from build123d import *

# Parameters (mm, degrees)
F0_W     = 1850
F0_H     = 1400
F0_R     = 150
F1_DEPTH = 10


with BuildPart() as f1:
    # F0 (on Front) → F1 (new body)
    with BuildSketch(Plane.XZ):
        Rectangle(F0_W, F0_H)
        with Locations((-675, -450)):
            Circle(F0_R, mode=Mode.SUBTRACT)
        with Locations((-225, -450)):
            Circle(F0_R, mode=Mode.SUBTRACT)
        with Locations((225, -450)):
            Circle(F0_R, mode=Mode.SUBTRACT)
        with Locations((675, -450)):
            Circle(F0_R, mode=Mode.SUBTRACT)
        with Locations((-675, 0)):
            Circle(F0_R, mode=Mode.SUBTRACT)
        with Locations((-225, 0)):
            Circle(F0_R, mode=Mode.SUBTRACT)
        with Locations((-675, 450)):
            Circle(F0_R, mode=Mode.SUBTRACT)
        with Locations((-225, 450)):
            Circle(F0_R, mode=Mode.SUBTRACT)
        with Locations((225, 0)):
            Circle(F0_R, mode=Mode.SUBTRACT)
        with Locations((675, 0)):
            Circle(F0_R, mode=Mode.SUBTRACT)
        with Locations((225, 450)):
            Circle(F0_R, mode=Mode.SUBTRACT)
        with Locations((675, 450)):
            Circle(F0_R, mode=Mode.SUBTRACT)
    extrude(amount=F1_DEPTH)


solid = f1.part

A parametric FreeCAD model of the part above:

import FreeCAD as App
import Part
import Sketcher


def add_polygon(sketch, points):
    """Adds a closed chain of lines whose ends are joined by coincident constraints."""
    first, n = sketch.GeometryCount, len(points)
    for a, b in zip(points, points[1:] + points[:1]):
        sketch.addGeometry(Part.LineSegment(App.Vector(*a, 0), App.Vector(*b, 0)), False)
    for i in range(n):
        sketch.addConstraint(Sketcher.Constraint("Coincident", first + i, 2, first + (i + 1) % n, 1))

doc = App.newDocument("Part")
params = doc.addObject("Spreadsheet::Sheet", "Params")
for row, (alias, value) in enumerate([
    ("sketch1_diameter", "300 mm"),
    ("sketch1_width", "1850 mm"),
    ("sketch1_height", "1400 mm"),
    ("pad1_length", "10 mm"),
], start=1):
    params.set(f"A{row}", alias)
    params.set(f"B{row}", "=" + value)
    params.setAlias(f"B{row}", alias)

body = doc.addObject("PartDesign::Body", "Body")

sketch1 = body.newObject("Sketcher::SketchObject", "Sketch")
sketch1.AttachmentSupport = (doc.getObject("XZ_Plane"), [""])
sketch1.MapMode = "FlatFace"
add_polygon(sketch1, [(-925, 700), (-925, -700), (925, -700), (925, 700)])
sketch1.addGeometry(Part.Circle(App.Vector(-675, -450, 0), App.Vector(0, 0, 1), 150), False)
sketch1.addGeometry(Part.Circle(App.Vector(-225, -450, 0), App.Vector(0, 0, 1), 150), False)
sketch1.addGeometry(Part.Circle(App.Vector(225, -450, 0), App.Vector(0, 0, 1), 150), False)
sketch1.addGeometry(Part.Circle(App.Vector(675, -450, 0), App.Vector(0, 0, 1), 150), False)
sketch1.addGeometry(Part.Circle(App.Vector(-675, 0, 0), App.Vector(0, 0, 1), 150), False)
sketch1.addGeometry(Part.Circle(App.Vector(-225, 0, 0), App.Vector(0, 0, 1), 150), False)
sketch1.addGeometry(Part.Circle(App.Vector(-675, 450, 0), App.Vector(0, 0, 1), 150), False)
sketch1.addGeometry(Part.Circle(App.Vector(-225, 450, 0), App.Vector(0, 0, 1), 150), False)
sketch1.addGeometry(Part.Circle(App.Vector(225, 0, 0), App.Vector(0, 0, 1), 150), False)
sketch1.addGeometry(Part.Circle(App.Vector(675, 0, 0), App.Vector(0, 0, 1), 150), False)
sketch1.addGeometry(Part.Circle(App.Vector(225, 450, 0), App.Vector(0, 0, 1), 150), False)
sketch1.addGeometry(Part.Circle(App.Vector(675, 450, 0), App.Vector(0, 0, 1), 150), False)
sketch1.addConstraint(Sketcher.Constraint("Vertical", 0))
sketch1.addConstraint(Sketcher.Constraint("Horizontal", 1))
sketch1.addConstraint(Sketcher.Constraint("Vertical", 2))
sketch1.addConstraint(Sketcher.Constraint("Horizontal", 3))
sketch1.addConstraint(Sketcher.Constraint("Equal", 4, 5))
sketch1.addConstraint(Sketcher.Constraint("Equal", 5, 6))
sketch1.addConstraint(Sketcher.Constraint("Equal", 6, 7))
sketch1.addConstraint(Sketcher.Constraint("Equal", 7, 8))
sketch1.addConstraint(Sketcher.Constraint("Equal", 8, 9))
sketch1.addConstraint(Sketcher.Constraint("Equal", 9, 10))
sketch1.addConstraint(Sketcher.Constraint("Equal", 10, 11))
sketch1.addConstraint(Sketcher.Constraint("Equal", 11, 12))
sketch1.addConstraint(Sketcher.Constraint("Equal", 12, 13))
sketch1.addConstraint(Sketcher.Constraint("Equal", 13, 14))
sketch1.addConstraint(Sketcher.Constraint("Equal", 14, 15))
sketch1.addConstraint(Sketcher.Constraint("Symmetric", 7, 3, 10, 3, -1, 1))
sketch1.addConstraint(Sketcher.Constraint("Symmetric", 6, 3, 11, 3, -1, 1))
sketch1.addConstraint(Sketcher.Constraint("Symmetric", 9, 3, 12, 3, -1, 1))
sketch1.addConstraint(Sketcher.Constraint("Symmetric", 8, 3, 13, 3, -1, 1))
sketch1.addConstraint(Sketcher.Constraint("Symmetric", 5, 3, 14, 3, -1, 1))
sketch1.addConstraint(Sketcher.Constraint("Symmetric", 4, 3, 15, 3, -1, 1))
sketch1.addConstraint(Sketcher.Constraint("Symmetric", 0, 2, 2, 2, -1, 1))
sketch1.addConstraint(Sketcher.Constraint("Symmetric", 5, 3, 6, 3, -2))
sketch1.addConstraint(Sketcher.Constraint("Symmetric", 4, 3, 7, 3, -2))
sketch1.addConstraint(Sketcher.Constraint("PointOnObject", 8, 3, -1))
sketch1.addConstraint(Sketcher.Constraint("PointOnObject", 9, 3, -1))
sketch1.addConstraint(Sketcher.Constraint("Horizontal", 4, 3, 5, 3))
sketch1.addConstraint(Sketcher.Constraint("Vertical", 4, 3, 8, 3))
sketch1.addConstraint(Sketcher.Constraint("Vertical", 5, 3, 9, 3))
sketch1.addConstraint(Sketcher.Constraint("Diameter", 4, 300.0))
sketch1.addConstraint(Sketcher.Constraint("DistanceX", 1, 1, 1, 2, 1850.0))
sketch1.addConstraint(Sketcher.Constraint("DistanceY", 0, 2, 0, 1, 1400.0))
sketch1.addConstraint(Sketcher.Constraint("DistanceX", 4, 3, -1, 1, 675.0))
sketch1.addConstraint(Sketcher.Constraint("DistanceY", 4, 3, -1, 1, 450.0))
sketch1.addConstraint(Sketcher.Constraint("DistanceX", 5, 3, -1, 1, 225.0))
sketch1.setExpression("Constraints[33]", "Params.sketch1_diameter")
sketch1.setExpression("Constraints[34]", "Params.sketch1_width")
sketch1.setExpression("Constraints[35]", "Params.sketch1_height")
pad1 = body.newObject("PartDesign::Pad", "Pad")
pad1.Profile = sketch1
pad1.setExpression("Length", "Params.pad1_length")

doc.recompute()
